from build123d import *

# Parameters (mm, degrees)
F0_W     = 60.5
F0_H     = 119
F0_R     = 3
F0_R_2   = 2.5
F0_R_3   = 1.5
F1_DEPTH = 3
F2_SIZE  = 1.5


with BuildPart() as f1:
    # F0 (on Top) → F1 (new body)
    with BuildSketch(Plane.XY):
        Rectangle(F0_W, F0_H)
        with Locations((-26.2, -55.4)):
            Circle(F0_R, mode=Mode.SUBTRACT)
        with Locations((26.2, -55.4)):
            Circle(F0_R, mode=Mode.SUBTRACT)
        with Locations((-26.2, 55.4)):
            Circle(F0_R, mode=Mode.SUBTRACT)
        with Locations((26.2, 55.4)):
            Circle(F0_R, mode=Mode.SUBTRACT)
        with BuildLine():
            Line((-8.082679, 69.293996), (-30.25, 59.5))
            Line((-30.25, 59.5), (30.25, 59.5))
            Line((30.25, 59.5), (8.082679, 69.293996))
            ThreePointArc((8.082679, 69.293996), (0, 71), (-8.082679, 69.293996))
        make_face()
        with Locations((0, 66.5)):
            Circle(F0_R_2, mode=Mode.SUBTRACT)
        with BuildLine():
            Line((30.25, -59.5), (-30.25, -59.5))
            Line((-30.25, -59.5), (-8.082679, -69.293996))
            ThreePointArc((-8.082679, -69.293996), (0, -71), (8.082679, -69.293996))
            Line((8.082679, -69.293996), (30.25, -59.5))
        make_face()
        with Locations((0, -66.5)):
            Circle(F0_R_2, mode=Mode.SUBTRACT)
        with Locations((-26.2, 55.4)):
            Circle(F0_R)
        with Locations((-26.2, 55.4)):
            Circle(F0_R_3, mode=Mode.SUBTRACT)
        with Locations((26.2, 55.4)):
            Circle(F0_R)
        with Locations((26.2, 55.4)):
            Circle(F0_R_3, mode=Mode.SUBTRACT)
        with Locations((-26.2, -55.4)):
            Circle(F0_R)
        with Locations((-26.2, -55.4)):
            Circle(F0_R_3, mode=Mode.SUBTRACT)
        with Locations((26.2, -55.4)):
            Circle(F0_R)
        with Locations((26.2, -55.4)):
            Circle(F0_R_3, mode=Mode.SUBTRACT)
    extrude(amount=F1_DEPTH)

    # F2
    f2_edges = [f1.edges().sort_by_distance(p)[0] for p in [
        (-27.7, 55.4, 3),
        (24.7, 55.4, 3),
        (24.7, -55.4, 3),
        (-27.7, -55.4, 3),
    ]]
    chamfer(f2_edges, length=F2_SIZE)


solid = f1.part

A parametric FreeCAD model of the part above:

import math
import FreeCAD as App
import Part
import Sketcher


def edges_at(feature, points):
    """Names of the edges that pass closest to the given points."""
    edges = feature.Shape.Edges
    near = lambda p: min(range(len(edges)), key=lambda i: edges[i].distToShape(Part.Vertex(*p))[0])
    return sorted({f"Edge{near(p) + 1}" for p in points})

doc = App.newDocument("Part")
body = doc.addObject("PartDesign::Body", "Body")

# Sketch on XY plane
sketch1 = body.newObject("Sketcher::SketchObject", "Sketch")
sketch1.AttachmentSupport = (doc.getObject("XY_Plane"), [""])
sketch1.MapMode = "FlatFace"
sketch1.addGeometry([
    Part.LineSegment(App.Vector(-30.25, 59.5, 0), App.Vector(-30.25, -59.5, 0)),  # 0
    Part.LineSegment(App.Vector(-30.25, -59.5, 0), App.Vector(-8.082679, -69.293996, 0)),  # 1
    Part.ArcOfCircle(Part.Circle(App.Vector(0, -51.000003, 0), App.Vector(0, 0, 1), 19.999997), math.radians(-113.836871), math.radians(-66.163129)),  # 2
    Part.LineSegment(App.Vector(8.082679, -69.293996, 0), App.Vector(30.25, -59.5, 0)),  # 3
    Part.LineSegment(App.Vector(30.25, -59.5, 0), App.Vector(30.25, 59.5, 0)),  # 4
    Part.LineSegment(App.Vector(30.25, 59.5, 0), App.Vector(8.082679, 69.293996, 0)),  # 5
    Part.ArcOfCircle(Part.Circle(App.Vector(0, 51.000003, 0), App.Vector(0, 0, 1), 19.999997), math.radians(66.163129), math.radians(113.836871)),  # 6
    Part.LineSegment(App.Vector(-8.082679, 69.293996, 0), App.Vector(-30.25, 59.5, 0)),  # 7
    Part.Circle(App.Vector(-26.2, -55.4, 0), App.Vector(0, 0, 1), 1.5),  # 8
    Part.Circle(App.Vector(0, -66.5, 0), App.Vector(0, 0, 1), 2.5),  # 9
    Part.Circle(App.Vector(26.2, -55.4, 0), App.Vector(0, 0, 1), 1.5),  # 10
    Part.Circle(App.Vector(-26.2, 55.4, 0), App.Vector(0, 0, 1), 1.5),  # 11
    Part.Circle(App.Vector(0, 66.5, 0), App.Vector(0, 0, 1), 2.5),  # 12
    Part.Circle(App.Vector(26.2, 55.4, 0), App.Vector(0, 0, 1), 1.5),  # 13
], False)
sketch1.addConstraint([
    Sketcher.Constraint("Coincident", 0, 2, 1, 1),
    Sketcher.Constraint("Tangent", 1, 2, 2, 1),
    Sketcher.Constraint("Tangent", 2, 2, 3, 1),
    Sketcher.Constraint("Coincident", 3, 2, 4, 1),
    Sketcher.Constraint("Coincident", 4, 2, 5, 1),
    Sketcher.Constraint("Tangent", 5, 2, 6, 1),
    Sketcher.Constraint("Tangent", 6, 2, 7, 1),
    Sketcher.Constraint("Coincident", 7, 2, 0, 1),
    Sketcher.Constraint("Vertical", 0),
    Sketcher.Constraint("Vertical", 4),
    Sketcher.Constraint("Equal", 2, 6),
    Sketcher.Constraint("Equal", 8, 10),
    Sketcher.Constraint("Equal", 10, 11),
    Sketcher.Constraint("Equal", 9, 12),
    Sketcher.Constraint("Equal", 11, 13),
    Sketcher.Constraint("Symmetric", 2, 3, 6, 3, -1, 1),
    Sketcher.Constraint("Symmetric", 10, 3, 11, 3, -1, 1),
    Sketcher.Constraint("Symmetric", 9, 3, 12, 3, -1, 1),
    Sketcher.Constraint("Symmetric", 8, 3, 13, 3, -1, 1),
    Sketcher.Constraint("Symmetric", 0, 2, 4, 2, -1, 1),
    Sketcher.Constraint("Symmetric", 8, 3, 10, 3, -2),
    Sketcher.Constraint("Symmetric", 1, 2, 2, 2, -2),
    Sketcher.Constraint("PointOnObject", 9, 3, -2),
    Sketcher.Constraint("Parallel", 3, 7),
    Sketcher.Constraint("Diameter", 8, 3.0),
    Sketcher.Constraint("Diameter", 9, 5.0),
    Sketcher.Constraint("DistanceY", 0, 2, 0, 1, 119.0),
    Sketcher.Constraint("DistanceY", 9, 3, 0, 2, 7.0),
    Sketcher.Constraint("DistanceX", 8, 3, -1, 1, 26.2),
    Sketcher.Constraint("DistanceY", 8, 3, -1, 1, 55.4),
    Sketcher.Constraint("DistanceX", 0, 2, -1, 1, 30.25),
    Sketcher.Constraint("Radius", 2, 19.999997),
    Sketcher.Constraint("Distance", 1, 24.234531),
])
pad1 = body.newObject("PartDesign::Pad", "Pad")
pad1.Profile = sketch1
pad1.Length = 3
doc.recompute()

chamfer = body.newObject("PartDesign::Chamfer", "Chamfer")
chamfer.Base = (pad1, edges_at(pad1, [
    (-27.7, 55.4, 3),
    (24.7, 55.4, 3),
    (24.7, -55.4, 3),
    (-27.7, -55.4, 3),
]))
chamfer.Size = 1.5

doc.recompute()
